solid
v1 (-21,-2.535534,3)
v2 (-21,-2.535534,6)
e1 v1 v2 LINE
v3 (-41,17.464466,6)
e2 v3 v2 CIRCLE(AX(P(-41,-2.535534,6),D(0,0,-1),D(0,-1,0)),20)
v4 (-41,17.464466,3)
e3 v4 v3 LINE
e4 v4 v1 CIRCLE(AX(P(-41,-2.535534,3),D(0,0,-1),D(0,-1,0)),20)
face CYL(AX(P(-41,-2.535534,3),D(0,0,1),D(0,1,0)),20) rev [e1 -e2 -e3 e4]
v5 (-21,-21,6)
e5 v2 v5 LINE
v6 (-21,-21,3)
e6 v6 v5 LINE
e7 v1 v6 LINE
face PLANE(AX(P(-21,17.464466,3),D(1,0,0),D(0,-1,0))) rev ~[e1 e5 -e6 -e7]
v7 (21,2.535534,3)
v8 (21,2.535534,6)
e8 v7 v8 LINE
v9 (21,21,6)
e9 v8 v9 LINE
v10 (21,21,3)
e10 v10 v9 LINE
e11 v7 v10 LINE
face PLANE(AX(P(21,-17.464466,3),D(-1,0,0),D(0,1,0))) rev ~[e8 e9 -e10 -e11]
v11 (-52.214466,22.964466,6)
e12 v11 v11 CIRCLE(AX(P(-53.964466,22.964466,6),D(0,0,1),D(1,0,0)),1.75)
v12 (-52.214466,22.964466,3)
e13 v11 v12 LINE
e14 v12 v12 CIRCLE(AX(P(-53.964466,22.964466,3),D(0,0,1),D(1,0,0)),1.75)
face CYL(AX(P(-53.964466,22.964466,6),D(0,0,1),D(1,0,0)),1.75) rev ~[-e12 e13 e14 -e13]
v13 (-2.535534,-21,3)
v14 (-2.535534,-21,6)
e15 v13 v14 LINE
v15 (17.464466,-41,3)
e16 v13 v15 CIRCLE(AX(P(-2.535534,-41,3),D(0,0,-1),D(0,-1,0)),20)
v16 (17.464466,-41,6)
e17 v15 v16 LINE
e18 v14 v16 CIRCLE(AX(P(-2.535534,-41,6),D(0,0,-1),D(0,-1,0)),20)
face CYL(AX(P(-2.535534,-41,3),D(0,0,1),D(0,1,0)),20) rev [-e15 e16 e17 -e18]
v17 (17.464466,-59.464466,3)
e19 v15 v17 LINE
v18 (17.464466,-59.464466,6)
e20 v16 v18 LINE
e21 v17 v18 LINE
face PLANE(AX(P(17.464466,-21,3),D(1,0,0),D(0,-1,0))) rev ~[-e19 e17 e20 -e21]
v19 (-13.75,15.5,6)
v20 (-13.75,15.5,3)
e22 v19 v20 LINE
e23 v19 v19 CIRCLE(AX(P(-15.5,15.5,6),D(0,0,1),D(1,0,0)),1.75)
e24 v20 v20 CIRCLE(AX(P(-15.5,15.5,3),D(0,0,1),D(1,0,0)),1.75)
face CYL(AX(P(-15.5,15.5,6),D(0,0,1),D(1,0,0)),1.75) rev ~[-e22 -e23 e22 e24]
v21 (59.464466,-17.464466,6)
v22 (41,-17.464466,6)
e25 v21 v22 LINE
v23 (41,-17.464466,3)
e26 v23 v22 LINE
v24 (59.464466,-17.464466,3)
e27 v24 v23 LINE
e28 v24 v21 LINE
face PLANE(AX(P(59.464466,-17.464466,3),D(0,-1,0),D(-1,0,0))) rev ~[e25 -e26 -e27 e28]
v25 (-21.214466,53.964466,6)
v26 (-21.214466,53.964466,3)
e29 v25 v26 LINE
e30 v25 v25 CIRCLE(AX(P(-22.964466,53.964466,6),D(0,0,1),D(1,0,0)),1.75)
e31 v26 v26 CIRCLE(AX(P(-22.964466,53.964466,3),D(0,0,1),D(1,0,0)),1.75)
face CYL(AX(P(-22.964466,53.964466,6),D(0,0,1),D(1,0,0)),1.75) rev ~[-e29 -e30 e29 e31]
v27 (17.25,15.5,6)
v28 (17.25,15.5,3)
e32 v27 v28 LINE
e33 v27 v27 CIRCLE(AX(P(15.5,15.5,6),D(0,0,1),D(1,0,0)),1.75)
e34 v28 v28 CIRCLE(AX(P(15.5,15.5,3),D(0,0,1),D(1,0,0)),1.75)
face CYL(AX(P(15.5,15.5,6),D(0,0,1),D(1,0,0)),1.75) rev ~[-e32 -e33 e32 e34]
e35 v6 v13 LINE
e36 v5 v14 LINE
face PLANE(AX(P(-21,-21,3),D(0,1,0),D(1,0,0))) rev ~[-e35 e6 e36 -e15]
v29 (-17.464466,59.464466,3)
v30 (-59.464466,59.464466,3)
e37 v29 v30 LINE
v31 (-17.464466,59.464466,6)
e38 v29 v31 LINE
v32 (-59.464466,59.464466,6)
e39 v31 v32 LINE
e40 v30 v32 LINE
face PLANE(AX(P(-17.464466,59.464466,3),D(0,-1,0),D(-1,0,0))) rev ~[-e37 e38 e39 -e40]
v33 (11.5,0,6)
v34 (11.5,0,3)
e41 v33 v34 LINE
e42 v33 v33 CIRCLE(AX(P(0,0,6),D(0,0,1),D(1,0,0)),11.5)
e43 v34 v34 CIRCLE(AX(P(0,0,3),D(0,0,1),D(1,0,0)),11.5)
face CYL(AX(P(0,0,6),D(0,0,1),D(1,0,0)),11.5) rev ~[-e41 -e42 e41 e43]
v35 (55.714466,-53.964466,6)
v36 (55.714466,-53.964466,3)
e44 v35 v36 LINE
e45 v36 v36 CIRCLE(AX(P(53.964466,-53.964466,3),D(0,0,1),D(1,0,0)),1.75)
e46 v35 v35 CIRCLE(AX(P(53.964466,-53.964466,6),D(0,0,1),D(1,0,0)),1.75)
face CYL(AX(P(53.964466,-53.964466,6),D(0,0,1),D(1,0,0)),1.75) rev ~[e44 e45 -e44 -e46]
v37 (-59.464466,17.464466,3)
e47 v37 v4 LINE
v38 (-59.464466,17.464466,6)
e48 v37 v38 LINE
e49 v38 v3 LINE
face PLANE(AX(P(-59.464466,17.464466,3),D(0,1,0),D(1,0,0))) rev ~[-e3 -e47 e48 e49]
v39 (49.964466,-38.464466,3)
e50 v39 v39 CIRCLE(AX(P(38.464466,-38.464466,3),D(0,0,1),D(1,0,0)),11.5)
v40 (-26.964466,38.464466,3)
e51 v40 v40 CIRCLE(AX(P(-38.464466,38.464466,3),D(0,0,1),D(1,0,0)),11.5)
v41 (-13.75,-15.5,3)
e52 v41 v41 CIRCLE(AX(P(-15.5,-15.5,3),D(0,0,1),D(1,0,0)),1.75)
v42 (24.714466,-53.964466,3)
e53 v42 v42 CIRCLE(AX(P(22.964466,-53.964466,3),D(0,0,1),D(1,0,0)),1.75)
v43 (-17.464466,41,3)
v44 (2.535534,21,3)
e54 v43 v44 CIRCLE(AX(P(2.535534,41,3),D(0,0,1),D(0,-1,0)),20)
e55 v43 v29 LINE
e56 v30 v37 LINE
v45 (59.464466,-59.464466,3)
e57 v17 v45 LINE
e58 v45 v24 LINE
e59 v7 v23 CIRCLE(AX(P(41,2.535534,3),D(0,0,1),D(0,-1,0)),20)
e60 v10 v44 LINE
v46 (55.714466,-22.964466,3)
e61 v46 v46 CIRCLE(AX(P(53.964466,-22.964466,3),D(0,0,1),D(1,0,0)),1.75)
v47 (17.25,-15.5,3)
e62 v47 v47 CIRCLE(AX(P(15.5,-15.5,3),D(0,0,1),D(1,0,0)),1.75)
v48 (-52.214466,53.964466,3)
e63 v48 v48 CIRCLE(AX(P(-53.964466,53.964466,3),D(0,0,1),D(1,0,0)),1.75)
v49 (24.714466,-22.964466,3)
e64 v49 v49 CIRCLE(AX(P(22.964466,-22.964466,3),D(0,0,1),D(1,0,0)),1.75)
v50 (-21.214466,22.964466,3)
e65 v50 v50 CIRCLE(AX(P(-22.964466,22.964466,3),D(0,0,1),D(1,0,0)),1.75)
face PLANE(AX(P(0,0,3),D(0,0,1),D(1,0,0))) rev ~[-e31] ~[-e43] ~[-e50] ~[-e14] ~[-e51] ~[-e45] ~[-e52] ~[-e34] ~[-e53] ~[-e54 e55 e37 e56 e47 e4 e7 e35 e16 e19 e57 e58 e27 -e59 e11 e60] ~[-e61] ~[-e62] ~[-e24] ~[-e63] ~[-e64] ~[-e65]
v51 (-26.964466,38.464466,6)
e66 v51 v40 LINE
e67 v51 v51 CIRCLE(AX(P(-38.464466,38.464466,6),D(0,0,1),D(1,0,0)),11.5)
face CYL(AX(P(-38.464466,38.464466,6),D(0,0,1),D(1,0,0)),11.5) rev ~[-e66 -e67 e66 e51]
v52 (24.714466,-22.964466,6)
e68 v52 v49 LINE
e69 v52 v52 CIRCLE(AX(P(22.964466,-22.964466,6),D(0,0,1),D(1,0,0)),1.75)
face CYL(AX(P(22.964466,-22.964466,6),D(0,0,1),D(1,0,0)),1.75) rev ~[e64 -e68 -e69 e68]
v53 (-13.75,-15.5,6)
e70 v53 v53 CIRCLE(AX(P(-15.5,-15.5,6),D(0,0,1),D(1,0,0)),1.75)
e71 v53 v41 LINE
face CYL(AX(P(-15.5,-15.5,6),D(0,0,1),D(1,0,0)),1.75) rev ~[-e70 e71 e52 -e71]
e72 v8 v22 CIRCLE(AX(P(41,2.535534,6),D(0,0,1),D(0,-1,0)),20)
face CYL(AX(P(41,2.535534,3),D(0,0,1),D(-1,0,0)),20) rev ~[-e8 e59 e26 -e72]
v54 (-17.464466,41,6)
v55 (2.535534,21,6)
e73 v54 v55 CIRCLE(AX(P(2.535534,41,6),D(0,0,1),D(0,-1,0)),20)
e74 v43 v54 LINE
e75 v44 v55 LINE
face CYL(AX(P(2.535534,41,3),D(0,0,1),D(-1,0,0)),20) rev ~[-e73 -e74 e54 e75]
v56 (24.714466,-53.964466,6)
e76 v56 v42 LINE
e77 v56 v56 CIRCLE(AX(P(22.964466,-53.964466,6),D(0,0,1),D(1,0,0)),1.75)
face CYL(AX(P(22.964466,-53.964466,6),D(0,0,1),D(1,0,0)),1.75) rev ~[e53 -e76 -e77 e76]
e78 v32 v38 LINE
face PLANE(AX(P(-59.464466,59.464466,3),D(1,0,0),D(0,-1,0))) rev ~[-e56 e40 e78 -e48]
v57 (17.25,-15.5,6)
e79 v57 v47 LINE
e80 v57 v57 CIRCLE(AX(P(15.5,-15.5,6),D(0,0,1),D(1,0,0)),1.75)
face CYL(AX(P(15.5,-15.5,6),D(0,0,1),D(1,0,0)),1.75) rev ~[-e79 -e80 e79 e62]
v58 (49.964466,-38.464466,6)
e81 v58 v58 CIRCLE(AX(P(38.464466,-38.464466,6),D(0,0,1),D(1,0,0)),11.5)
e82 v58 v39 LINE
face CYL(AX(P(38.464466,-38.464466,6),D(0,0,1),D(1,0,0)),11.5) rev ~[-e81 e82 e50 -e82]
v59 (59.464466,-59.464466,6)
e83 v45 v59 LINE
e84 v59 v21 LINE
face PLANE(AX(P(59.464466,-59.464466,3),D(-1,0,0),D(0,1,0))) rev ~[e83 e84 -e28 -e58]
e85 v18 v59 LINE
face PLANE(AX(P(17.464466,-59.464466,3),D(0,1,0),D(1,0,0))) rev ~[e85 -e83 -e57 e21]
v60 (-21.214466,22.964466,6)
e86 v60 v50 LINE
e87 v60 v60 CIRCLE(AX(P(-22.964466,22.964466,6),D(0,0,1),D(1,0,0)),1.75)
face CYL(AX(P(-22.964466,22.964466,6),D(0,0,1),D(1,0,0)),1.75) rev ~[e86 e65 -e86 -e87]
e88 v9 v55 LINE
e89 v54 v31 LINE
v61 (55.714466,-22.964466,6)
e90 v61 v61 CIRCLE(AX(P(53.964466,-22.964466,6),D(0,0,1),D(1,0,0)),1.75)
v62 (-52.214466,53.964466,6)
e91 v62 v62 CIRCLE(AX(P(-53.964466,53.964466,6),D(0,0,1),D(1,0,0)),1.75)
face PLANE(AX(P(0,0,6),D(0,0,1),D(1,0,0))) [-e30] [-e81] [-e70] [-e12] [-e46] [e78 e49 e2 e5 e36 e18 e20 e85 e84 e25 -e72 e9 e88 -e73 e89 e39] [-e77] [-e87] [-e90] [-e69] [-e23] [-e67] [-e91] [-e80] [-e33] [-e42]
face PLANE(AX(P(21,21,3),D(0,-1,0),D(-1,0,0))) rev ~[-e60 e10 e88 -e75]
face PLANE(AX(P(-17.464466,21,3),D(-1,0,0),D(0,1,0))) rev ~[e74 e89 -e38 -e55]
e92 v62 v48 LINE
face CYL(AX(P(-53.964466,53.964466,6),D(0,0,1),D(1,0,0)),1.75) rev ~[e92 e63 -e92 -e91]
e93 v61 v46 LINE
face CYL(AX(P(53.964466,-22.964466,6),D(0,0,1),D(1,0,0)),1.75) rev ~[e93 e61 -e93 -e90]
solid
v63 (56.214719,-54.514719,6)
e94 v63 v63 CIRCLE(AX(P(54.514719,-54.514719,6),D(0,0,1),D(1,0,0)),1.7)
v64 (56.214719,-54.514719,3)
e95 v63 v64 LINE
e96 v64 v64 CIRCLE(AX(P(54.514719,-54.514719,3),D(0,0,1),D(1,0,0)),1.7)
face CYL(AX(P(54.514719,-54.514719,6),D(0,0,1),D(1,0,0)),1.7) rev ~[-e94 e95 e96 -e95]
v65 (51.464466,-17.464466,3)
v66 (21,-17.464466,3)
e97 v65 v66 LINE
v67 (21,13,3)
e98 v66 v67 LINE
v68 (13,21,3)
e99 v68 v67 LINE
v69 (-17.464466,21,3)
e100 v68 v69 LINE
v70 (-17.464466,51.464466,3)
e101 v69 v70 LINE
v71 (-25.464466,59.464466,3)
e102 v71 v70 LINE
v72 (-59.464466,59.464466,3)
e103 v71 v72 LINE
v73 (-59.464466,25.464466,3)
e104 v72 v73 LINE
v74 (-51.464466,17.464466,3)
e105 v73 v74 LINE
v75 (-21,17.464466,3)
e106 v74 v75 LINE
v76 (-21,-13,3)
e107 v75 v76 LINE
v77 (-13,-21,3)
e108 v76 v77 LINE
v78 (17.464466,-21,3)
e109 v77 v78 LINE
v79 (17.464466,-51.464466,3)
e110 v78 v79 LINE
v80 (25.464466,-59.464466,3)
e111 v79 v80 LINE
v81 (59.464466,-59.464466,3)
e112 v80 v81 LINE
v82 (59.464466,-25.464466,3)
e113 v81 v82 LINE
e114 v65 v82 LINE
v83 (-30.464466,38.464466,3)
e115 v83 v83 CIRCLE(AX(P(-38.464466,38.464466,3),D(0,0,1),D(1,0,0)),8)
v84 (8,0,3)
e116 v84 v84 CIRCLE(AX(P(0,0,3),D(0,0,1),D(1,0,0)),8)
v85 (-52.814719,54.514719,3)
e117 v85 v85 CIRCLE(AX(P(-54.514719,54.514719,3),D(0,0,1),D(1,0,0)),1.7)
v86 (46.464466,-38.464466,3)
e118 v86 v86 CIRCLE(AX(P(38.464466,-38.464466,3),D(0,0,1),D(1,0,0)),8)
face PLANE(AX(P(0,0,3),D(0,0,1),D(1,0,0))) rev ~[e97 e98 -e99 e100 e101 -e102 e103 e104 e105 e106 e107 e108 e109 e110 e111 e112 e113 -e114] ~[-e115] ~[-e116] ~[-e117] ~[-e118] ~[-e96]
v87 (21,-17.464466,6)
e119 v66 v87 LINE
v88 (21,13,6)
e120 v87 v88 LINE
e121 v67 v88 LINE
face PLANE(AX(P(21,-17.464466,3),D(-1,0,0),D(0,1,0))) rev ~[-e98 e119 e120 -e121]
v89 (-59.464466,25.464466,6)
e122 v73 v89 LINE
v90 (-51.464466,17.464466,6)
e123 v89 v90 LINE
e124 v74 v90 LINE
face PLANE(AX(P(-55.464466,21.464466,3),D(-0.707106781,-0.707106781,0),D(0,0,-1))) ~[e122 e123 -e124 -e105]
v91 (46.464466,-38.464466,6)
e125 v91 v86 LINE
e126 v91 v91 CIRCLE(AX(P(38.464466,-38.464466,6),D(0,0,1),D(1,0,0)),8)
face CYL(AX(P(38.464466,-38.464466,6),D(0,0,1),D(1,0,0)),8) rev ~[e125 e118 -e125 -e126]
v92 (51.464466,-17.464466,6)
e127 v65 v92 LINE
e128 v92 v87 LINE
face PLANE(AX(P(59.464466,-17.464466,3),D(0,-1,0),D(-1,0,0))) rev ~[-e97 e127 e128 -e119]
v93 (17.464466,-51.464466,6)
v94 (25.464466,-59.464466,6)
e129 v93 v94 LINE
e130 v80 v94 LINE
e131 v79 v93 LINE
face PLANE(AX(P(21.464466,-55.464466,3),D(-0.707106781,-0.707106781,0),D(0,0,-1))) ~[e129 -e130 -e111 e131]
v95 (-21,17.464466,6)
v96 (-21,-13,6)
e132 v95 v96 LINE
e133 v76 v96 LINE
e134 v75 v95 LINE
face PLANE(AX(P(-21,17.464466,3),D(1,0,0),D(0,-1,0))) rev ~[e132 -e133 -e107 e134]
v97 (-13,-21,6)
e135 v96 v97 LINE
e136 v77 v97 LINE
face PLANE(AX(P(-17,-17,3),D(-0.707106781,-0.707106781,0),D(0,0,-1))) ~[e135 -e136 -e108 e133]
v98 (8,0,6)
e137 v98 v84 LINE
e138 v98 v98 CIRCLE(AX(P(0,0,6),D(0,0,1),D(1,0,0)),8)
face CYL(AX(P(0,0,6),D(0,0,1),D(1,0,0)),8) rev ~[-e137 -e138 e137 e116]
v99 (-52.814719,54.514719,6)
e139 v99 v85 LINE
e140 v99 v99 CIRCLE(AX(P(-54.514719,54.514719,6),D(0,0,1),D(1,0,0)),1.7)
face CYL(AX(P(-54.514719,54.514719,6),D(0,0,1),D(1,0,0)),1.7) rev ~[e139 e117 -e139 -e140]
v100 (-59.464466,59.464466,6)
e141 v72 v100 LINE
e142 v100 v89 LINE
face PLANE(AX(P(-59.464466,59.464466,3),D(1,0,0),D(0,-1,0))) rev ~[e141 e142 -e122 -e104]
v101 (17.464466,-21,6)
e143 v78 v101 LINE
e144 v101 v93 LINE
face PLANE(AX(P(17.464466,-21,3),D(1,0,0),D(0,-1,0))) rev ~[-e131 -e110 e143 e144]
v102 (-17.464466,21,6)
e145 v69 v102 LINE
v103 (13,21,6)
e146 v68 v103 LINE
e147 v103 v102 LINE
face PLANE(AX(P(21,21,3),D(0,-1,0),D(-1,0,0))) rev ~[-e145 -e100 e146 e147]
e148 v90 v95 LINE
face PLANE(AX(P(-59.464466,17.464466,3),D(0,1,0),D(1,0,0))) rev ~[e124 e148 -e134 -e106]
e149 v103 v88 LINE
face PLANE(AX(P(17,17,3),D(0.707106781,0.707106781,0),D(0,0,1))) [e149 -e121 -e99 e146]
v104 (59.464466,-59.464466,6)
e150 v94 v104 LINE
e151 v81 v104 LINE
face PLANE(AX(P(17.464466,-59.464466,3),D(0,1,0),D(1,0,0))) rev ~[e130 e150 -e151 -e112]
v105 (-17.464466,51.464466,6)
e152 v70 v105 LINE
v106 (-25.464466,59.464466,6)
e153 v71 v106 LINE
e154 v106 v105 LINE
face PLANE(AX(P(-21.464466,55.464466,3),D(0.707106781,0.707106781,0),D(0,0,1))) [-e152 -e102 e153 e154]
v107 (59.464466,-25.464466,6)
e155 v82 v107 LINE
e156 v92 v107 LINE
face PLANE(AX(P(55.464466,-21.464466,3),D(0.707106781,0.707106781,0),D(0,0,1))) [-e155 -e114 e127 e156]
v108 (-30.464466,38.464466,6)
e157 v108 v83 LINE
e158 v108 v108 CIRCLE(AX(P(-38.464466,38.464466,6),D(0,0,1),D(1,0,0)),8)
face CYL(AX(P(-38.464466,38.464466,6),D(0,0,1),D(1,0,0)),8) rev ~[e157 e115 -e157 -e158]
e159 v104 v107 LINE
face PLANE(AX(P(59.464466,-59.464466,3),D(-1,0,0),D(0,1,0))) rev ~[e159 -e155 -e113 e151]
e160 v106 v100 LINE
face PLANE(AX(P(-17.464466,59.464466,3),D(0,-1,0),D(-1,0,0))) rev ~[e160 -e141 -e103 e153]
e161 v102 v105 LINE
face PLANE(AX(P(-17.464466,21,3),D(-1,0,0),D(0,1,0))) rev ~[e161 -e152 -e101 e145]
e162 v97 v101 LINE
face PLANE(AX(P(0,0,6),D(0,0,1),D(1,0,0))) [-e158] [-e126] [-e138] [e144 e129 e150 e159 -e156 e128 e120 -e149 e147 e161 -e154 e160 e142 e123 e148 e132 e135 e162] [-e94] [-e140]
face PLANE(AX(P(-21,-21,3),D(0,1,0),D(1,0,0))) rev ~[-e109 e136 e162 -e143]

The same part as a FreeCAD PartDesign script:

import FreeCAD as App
import Part
import Sketcher

V = App.Vector
Q = App.Units.Quantity


def edges_at(feature, points):
    """Names of the edges that pass closest to the given points."""
    edges = feature.Shape.Edges
    near = lambda p: min(range(len(edges)), key=lambda i: edges[i].distToShape(Part.Vertex(*p))[0])
    return sorted({f"Edge{near(p) + 1}" for p in points})


def add_polygon(sketch, points):
    """Adds a closed chain of lines whose ends are joined by coincident constraints."""
    first, n = sketch.GeometryCount, len(points)
    for a, b in zip(points, points[1:] + points[:1]):
        sketch.addGeometry(Part.LineSegment(App.Vector(*a, 0), App.Vector(*b, 0)), False)
    for i in range(n):
        sketch.addConstraint(Sketcher.Constraint("Coincident", first + i, 2, first + (i + 1) % n, 1))

doc = App.newDocument("Part")
body = doc.addObject("PartDesign::Body", "Body")

sketch1 = doc.addObject("Sketcher::SketchObject", "Sketch")
body.addObject(sketch1)
sketch1.AttachmentSupport = (doc.XY_Plane, [""])
sketch1.MapMode = "FlatFace"
sketch1.AttachmentOffset = App.Placement(V(0, 0, 3), App.Rotation())
add_polygon(sketch1, [(-59, 59), (-59, 17), (-21, 17), (-21, -21), (17, -21), (17, -59), (59, -59), (59, -17), (21, -17), (21, 21), (-17, 21), (-17, 59)])
sketch1.addConstraint([
    Sketcher.Constraint("Vertical", 0),
    Sketcher.Constraint("Horizontal", 1),
    Sketcher.Constraint("Vertical", 2),
    Sketcher.Constraint("Horizontal", 3),
    Sketcher.Constraint("Vertical", 4),
    Sketcher.Constraint("Horizontal", 5),
    Sketcher.Constraint("Vertical", 6),
    Sketcher.Constraint("Horizontal", 7),
    Sketcher.Constraint("Vertical", 8),
    Sketcher.Constraint("Horizontal", 9),
    Sketcher.Constraint("Vertical", 10),
    Sketcher.Constraint("Horizontal", 11),
    Sketcher.Constraint("Symmetric", 0, 2, 6, 2, -1, 1),
    Sketcher.Constraint("Symmetric", 2, 2, 8, 2, -1, 1),
    Sketcher.Constraint("Symmetric", 4, 2, 10, 2, -1, 1),
    Sketcher.Constraint("Equal", 1, 3),
    Sketcher.Constraint("Equal", 11, 0),
    Sketcher.Constraint("Equal", 9, 2),
    Sketcher.Constraint("Equal", 2, 4),
    Sketcher.Constraint("DistanceX", 5, 1, 5, 2, Q("42 mm")),
    Sketcher.Constraint("DistanceX", 1, 1, 1, 2, Q("38.464466 mm")),
])
pad1 = doc.addObject("PartDesign::Pad", "Pad")
body.addObject(pad1)
pad1.Profile = sketch1
pad1.Length = 3

sketch2 = doc.addObject("Sketcher::SketchObject", "Sketch001")
body.addObject(sketch2)
sketch2.AttachmentSupport = (doc.XY_Plane, [""])
sketch2.MapMode = "FlatFace"
sketch2.AttachmentOffset = App.Placement(V(0, 0, 6), App.Rotation())
sketch2.addGeometry([
    Part.Circle(V(-38.5, 38.5, 0), V(0, 0, 1), 11.5),
    Part.Circle(V(0, 0, 0), V(0, 0, 1), 11.5),
    Part.Circle(V(38.5, -38.5, 0), V(0, 0, 1), 11.5),
    Part.Circle(V(54, -23, 0), V(0, 0, 1), 1.8),
    Part.Circle(V(54, -54, 0), V(0, 0, 1), 1.8),
    Part.Circle(V(23, -54, 0), V(0, 0, 1), 1.8),
    Part.Circle(V(23, -23, 0), V(0, 0, 1), 1.8),
    Part.Circle(V(15.5, -15.5, 0), V(0, 0, 1), 1.8),
    Part.Circle(V(15.5, 15.5, 0), V(0, 0, 1), 1.8),
    Part.Circle(V(-15.5, 15.5, 0), V(0, 0, 1), 1.8),
    Part.Circle(V(-15.5, -15.5, 0), V(0, 0, 1), 1.8),
    Part.Circle(V(-23, 23, 0), V(0, 0, 1), 1.8),
    Part.Circle(V(-54, 23, 0), V(0, 0, 1), 1.8),
    Part.Circle(V(-54, 54, 0), V(0, 0, 1), 1.8),
    Part.Circle(V(-23, 54, 0), V(0, 0, 1), 1.8),
], False)
sketch2.addConstraint([
    Sketcher.Constraint("Coincident", 1, 3, -1, 1),
    Sketcher.Constraint("Equal", 0, 1),
    Sketcher.Constraint("Equal", 1, 2),
    Sketcher.Constraint("Equal", 3, 4),
    Sketcher.Constraint("Equal", 4, 5),
    Sketcher.Constraint("Equal", 5, 6),
    Sketcher.Constraint("Equal", 6, 7),
    Sketcher.Constraint("Equal", 7, 8),
    Sketcher.Constraint("Equal", 8, 9),
    Sketcher.Constraint("Equal", 9, 10),
    Sketcher.Constraint("Equal", 10, 11),
    Sketcher.Constraint("Equal", 11, 12),
    Sketcher.Constraint("Equal", 12, 13),
    Sketcher.Constraint("Equal", 13, 14),
    Sketcher.Constraint("Symmetric", 0, 3, 2, 3, -1, 1),
    Sketcher.Constraint("Symmetric", 7, 3, 9, 3, -1, 1),
    Sketcher.Constraint("Symmetric", 8, 3, 10, 3, -1, 1),
    Sketcher.Constraint("Symmetric", 6, 3, 11, 3, -1, 1),
    Sketcher.Constraint("Symmetric", 3, 3, 12, 3, -1, 1),
    Sketcher.Constraint("Symmetric", 4, 3, 13, 3, -1, 1),
    Sketcher.Constraint("Symmetric", 5, 3, 14, 3, -1, 1),
    Sketcher.Constraint("Symmetric", 8, 3, 9, 3, -2),
    Sketcher.Constraint("Horizontal", 4, 3, 5, 3),
    Sketcher.Constraint("Horizontal", 3, 3, 6, 3),
    Sketcher.Constraint("Vertical", 3, 3, 4, 3),
    Sketcher.Constraint("Vertical", 5, 3, 6, 3),
    Sketcher.Constraint("Diameter", 0, Q("23 mm")),
    Sketcher.Constraint("Diameter", 3, Q("3.5 mm")),
    Sketcher.Constraint("DistanceY", 4, 3, 3, 3, Q("31 mm")),
    Sketcher.Constraint("DistanceX", 5, 3, 4, 3, Q("31 mm")),
    Sketcher.Constraint("DistanceY", 7, 3, 8, 3, Q("31 mm")),
    Sketcher.Constraint("DistanceX", 9, 3, 8, 3, Q("31 mm")),
    Sketcher.Constraint("DistanceX", 2, 3, 3, 3, Q("15.5 mm")),
    Sketcher.Constraint("DistanceY", 2, 3, 3, 3, Q("15.5 mm")),
    Sketcher.Constraint("DistanceX", 0, 3, -1, 1, Q("38.464466 mm")),
    Sketcher.Constraint("DistanceY", -1, 1, 0, 3, Q("38.464466 mm")),
])
pocket1 = doc.addObject("PartDesign::Pocket", "Pocket")
body.addObject(pocket1)
pocket1.Profile = sketch2
pocket1.Type = "ThroughAll"
doc.recompute()

fillet = doc.addObject("PartDesign::Fillet", "Fillet")
body.addObject(fillet)
fillet.Base = (pocket1, edges_at(pocket1, [
    (-21, 17.464, 4.5),
    (-17.464, 21, 4.5),
    (21, -17.464, 4.5),
    (17.464, -21, 4.5),
]))
fillet.Radius = 20
body2 = doc.addObject("PartDesign::Body", "Body001")

sketch3 = doc.addObject("Sketcher::SketchObject", "Sketch002")
body2.addObject(sketch3)
sketch3.AttachmentSupport = (doc.getObject("XY_Plane001"), [""])
sketch3.MapMode = "FlatFace"
sketch3.AttachmentOffset = App.Placement(V(0, 0, 3), App.Rotation())
add_polygon(sketch3, [(-59, 59), (-59, 17), (-21, 17), (-21, -21), (17, -21), (17, -59), (59, -59), (59, -17), (21, -17), (21, 21), (-17, 21), (-17, 59)])
sketch3.addConstraint([
    Sketcher.Constraint("Vertical", 0),
    Sketcher.Constraint("Horizontal", 1),
    Sketcher.Constraint("Vertical", 2),
    Sketcher.Constraint("Horizontal", 3),
    Sketcher.Constraint("Vertical", 4),
    Sketcher.Constraint("Horizontal", 5),
    Sketcher.Constraint("Vertical", 6),
    Sketcher.Constraint("Horizontal", 7),
    Sketcher.Constraint("Vertical", 8),
    Sketcher.Constraint("Horizontal", 9),
    Sketcher.Constraint("Vertical", 10),
    Sketcher.Constraint("Horizontal", 11),
    Sketcher.Constraint("Symmetric", 0, 2, 6, 2, -1, 1),
    Sketcher.Constraint("Symmetric", 2, 2, 8, 2, -1, 1),
    Sketcher.Constraint("Symmetric", 4, 2, 10, 2, -1, 1),
    Sketcher.Constraint("Equal", 1, 3),
    Sketcher.Constraint("Equal", 11, 0),
    Sketcher.Constraint("Equal", 9, 2),
    Sketcher.Constraint("Equal", 2, 4),
    Sketcher.Constraint("DistanceX", 5, 1, 5, 2, Q("42 mm")),
    Sketcher.Constraint("DistanceX", 1, 1, 1, 2, Q("38.464466 mm")),
])
pad2 = doc.addObject("PartDesign::Pad", "Pad001")
body2.addObject(pad2)
pad2.Profile = sketch3
pad2.Length = 3

sketch4 = doc.addObject("Sketcher::SketchObject", "Sketch003")
body2.addObject(sketch4)
sketch4.AttachmentSupport = (doc.getObject("XY_Plane001"), [""])
sketch4.MapMode = "FlatFace"
sketch4.AttachmentOffset = App.Placement(V(0, 0, 6), App.Rotation())
sketch4.addGeometry([
    Part.Circle(V(-38.5, 38.5, 0), V(0, 0, 1), 8),
    Part.Circle(V(0, 0, 0), V(0, 0, 1), 8),
    Part.Circle(V(38.5, -38.5, 0), V(0, 0, 1), 8),
    Part.Circle(V(-54.5, 54.5, 0), V(0, 0, 1), 1.7),
    Part.Circle(V(54.5, -54.5, 0), V(0, 0, 1), 1.7),
], False)
sketch4.addConstraint([
    Sketcher.Constraint("Coincident", 1, 3, -1, 1),
    Sketcher.Constraint("Equal", 0, 1),
    Sketcher.Constraint("Equal", 1, 2),
    Sketcher.Constraint("Equal", 3, 4),
    Sketcher.Constraint("Symmetric", 0, 3, 2, 3, -1, 1),
    Sketcher.Constraint("Symmetric", 3, 3, 4, 3, -1, 1),
    Sketcher.Constraint("Diameter", 0, Q("16 mm")),
    Sketcher.Constraint("Diameter", 3, Q("3.4 mm")),
    Sketcher.Constraint("DistanceX", 3, 3, -1, 1, Q("54.514719 mm")),
    Sketcher.Constraint("DistanceY", -1, 1, 3, 3, Q("54.514719 mm")),
    Sketcher.Constraint("DistanceX", 0, 3, -1, 1, Q("38.464466 mm")),
    Sketcher.Constraint("DistanceY", -1, 1, 0, 3, Q("38.464466 mm")),
])
pocket2 = doc.addObject("PartDesign::Pocket", "Pocket001")
body2.addObject(pocket2)
pocket2.Profile = sketch4
pocket2.Type = "ThroughAll"
doc.recompute()

chamfer = doc.addObject("PartDesign::Chamfer", "Chamfer")
body2.addObject(chamfer)
chamfer.Base = (pocket2, edges_at(pocket2, [
    (-17.464, 59.464, 4.5),
    (21, 21, 4.5),
    (59.464, -17.464, 4.5),
    (-59.464, 17.464, 4.5),
    (-21, -21, 4.5),
    (17.464, -59.464, 4.5),
]))
chamfer.Size = 8

doc.recompute()
